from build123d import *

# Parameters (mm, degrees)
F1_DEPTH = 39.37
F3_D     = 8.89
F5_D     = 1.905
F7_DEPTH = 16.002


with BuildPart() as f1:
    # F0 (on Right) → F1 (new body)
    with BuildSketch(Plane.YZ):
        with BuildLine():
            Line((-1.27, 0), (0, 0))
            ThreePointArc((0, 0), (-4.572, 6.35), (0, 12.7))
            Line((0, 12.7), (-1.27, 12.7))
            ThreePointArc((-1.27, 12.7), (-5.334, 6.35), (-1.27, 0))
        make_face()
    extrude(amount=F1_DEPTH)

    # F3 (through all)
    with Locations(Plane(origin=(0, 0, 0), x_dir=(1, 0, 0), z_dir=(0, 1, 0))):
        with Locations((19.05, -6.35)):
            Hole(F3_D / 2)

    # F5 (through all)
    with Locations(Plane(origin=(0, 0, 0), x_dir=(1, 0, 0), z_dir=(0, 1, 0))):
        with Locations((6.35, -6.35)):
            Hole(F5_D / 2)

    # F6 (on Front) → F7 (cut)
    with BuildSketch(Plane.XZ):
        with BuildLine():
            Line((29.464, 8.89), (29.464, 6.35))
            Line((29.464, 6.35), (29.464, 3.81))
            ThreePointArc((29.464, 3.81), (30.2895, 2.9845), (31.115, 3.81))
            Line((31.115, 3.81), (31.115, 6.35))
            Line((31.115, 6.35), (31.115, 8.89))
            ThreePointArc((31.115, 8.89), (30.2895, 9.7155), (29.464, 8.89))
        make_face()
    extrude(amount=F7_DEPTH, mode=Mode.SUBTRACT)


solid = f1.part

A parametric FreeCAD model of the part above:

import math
import FreeCAD as App
import Part
import Sketcher

V = App.Vector
Q = App.Units.Quantity

doc = App.newDocument("Part")
body = doc.addObject("PartDesign::Body", "Body")

# Sketch on YZ plane
sketch1 = doc.addObject("Sketcher::SketchObject", "Sketch")
body.addObject(sketch1)
sketch1.AttachmentSupport = (doc.YZ_Plane, [""])
sketch1.MapMode = "FlatFace"
sketch1.addGeometry([
    Part.LineSegment(V(-1.3, 0, 0), V(0, 0, 0)),
    Part.ArcOfCircle(Part.Circle(V(2.1, 6.3, 0), V(0, 0, 1), 6.7), math.radians(108), math.radians(252)),
    Part.LineSegment(V(0, 12.7, 0), V(-1.3, 12.7, 0)),
    Part.ArcOfCircle(Part.Circle(V(1.7, 6.3, 0), V(0, 0, 1), 7), math.radians(115), math.radians(245)),
], False)
sketch1.addConstraint([
    Sketcher.Constraint("Coincident", 0, 2, 1, 2),
    Sketcher.Constraint("Coincident", 1, 1, 2, 1),
    Sketcher.Constraint("Coincident", 2, 2, 3, 1),
    Sketcher.Constraint("Coincident", 3, 2, 0, 1),
    Sketcher.Constraint("Horizontal", 0),
    Sketcher.Constraint("Horizontal", 2),
    Sketcher.Constraint("Coincident", 0, 2, -1, 1),
    Sketcher.Constraint("PointOnObject", 1, 1, -2),
    Sketcher.Constraint("Horizontal", 1, 3, 3, 3),
    Sketcher.Constraint("DistanceX", 0, 1, 0, 2, Q("0.05 in")),
    Sketcher.Constraint("DistanceY", -1, 1, 1, 1, Q("0.5 in")),
    Sketcher.Constraint("Radius", 1, Q("6.695722 mm")),
    Sketcher.Constraint("Radius", 3, Q("6.992938 mm")),
])
pad1 = doc.addObject("PartDesign::Pad", "Pad")
body.addObject(pad1)
pad1.Profile = sketch1
pad1.Length = Q("1.55 in")

# Sketch on XZ plane
sketch2 = doc.addObject("Sketcher::SketchObject", "Sketch001")
body.addObject(sketch2)
sketch2.AttachmentSupport = (doc.XZ_Plane, [""])
sketch2.MapMode = "FlatFace"
sketch2.addGeometry(Part.Circle(V(19.1, 6.3, 0), V(0, 0, 1), 4.4), False)
sketch2.addConstraint([
    Sketcher.Constraint("Diameter", 0, Q("0.35 in")),
    Sketcher.Constraint("DistanceX", -1, 1, 0, 3, Q("0.75 in")),
    Sketcher.Constraint("DistanceY", -1, 1, 0, 3, Q("0.25 in")),
])
doc.recompute()
hole = doc.addObject("PartDesign::Hole", "Hole")
body.addObject(hole)
hole.Profile = sketch2
hole.ThreadType = "None"
hole.Diameter = Q("0.35 in")
hole.DepthType = "ThroughAll"
hole.Reversed = True

# Sketch on XZ plane
sketch3 = doc.addObject("Sketcher::SketchObject", "Sketch002")
body.addObject(sketch3)
sketch3.AttachmentSupport = (doc.XZ_Plane, [""])
sketch3.MapMode = "FlatFace"
sketch3.addGeometry(Part.Circle(V(6.3, 6.3, 0), V(0, 0, 1), 1), False)
sketch3.addConstraint([
    Sketcher.Constraint("Diameter", 0, Q("0.075 in")),
    Sketcher.Constraint("DistanceX", -1, 1, 0, 3, Q("0.25 in")),
    Sketcher.Constraint("DistanceY", -1, 1, 0, 3, Q("0.25 in")),
])
doc.recompute()
hole2 = doc.addObject("PartDesign::Hole", "Hole001")
body.addObject(hole2)
hole2.Profile = sketch3
hole2.ThreadType = "None"
hole2.Diameter = Q("0.075 in")
hole2.DepthType = "ThroughAll"
hole2.Reversed = True

# Sketch on XZ plane
sketch4 = doc.addObject("Sketcher::SketchObject", "Sketch003")
body.addObject(sketch4)
sketch4.AttachmentSupport = (doc.XZ_Plane, [""])
sketch4.MapMode = "FlatFace"
sketch4.addGeometry([
    Part.LineSegment(V(29.5, 8.9, 0), V(29.5, 3.8, 0)),
    Part.ArcOfCircle(Part.Circle(V(30.3, 3.8, 0), V(0, 0, 1), 0.8), math.radians(180), math.radians(360)),
    Part.LineSegment(V(31.1, 3.8, 0), V(31.1, 8.9, 0)),
    Part.ArcOfCircle(Part.Circle(V(30.3, 8.9, 0), V(0, 0, 1), 0.8), math.radians(0), math.radians(180)),
], False)
sketch4.addConstraint([
    Sketcher.Constraint("Tangent", 0, 2, 1, 1),
    Sketcher.Constraint("Tangent", 1, 2, 2, 1),
    Sketcher.Constraint("Tangent", 2, 2, 3, 1),
    Sketcher.Constraint("Tangent", 3, 2, 0, 1),
    Sketcher.Constraint("Vertical", 0),
    Sketcher.Constraint("Vertical", 2),
    Sketcher.Constraint("DistanceY", 0, 2, 0, 1, Q("0.2 in")),
    Sketcher.Constraint("Radius", 1, Q("0.0325 in")),
    Sketcher.Constraint("DistanceY", -1, 1, 1, 3, Q("0.15 in")),
    Sketcher.Constraint("DistanceX", -1, 1, 0, 2, Q("1.16 in")),
])
pocket1 = doc.addObject("PartDesign::Pocket", "Pocket")
body.addObject(pocket1)
pocket1.Profile = sketch4
pocket1.Length = Q("0.63 in")
pocket1.Reversed = True

doc.recompute()
